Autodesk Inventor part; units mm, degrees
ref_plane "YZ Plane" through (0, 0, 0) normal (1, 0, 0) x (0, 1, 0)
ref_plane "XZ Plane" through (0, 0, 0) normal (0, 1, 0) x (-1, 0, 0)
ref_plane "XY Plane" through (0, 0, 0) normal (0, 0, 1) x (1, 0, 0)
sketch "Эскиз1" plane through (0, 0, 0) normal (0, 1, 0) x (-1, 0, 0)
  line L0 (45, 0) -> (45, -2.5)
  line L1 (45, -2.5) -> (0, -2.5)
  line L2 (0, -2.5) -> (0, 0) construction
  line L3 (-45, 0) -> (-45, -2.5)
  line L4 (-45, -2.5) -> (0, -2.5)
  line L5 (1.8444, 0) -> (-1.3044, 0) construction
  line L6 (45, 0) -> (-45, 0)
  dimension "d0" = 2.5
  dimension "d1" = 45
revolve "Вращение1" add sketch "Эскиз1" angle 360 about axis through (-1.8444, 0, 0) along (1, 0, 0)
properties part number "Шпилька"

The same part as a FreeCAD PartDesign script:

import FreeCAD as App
import Part
import Sketcher

V = App.Vector


def add_polygon(sketch, points):
    """Adds a closed chain of lines whose ends are joined by coincident constraints."""
    first, n = sketch.GeometryCount, len(points)
    for a, b in zip(points, points[1:] + points[:1]):
        sketch.addGeometry(Part.LineSegment(App.Vector(*a, 0), App.Vector(*b, 0)), False)
    for i in range(n):
        sketch.addConstraint(Sketcher.Constraint("Coincident", first + i, 2, first + (i + 1) % n, 1))

doc = App.newDocument("Part")
body = doc.addObject("PartDesign::Body", "Body")

# Sketch on XZ plane
sketch1 = doc.addObject("Sketcher::SketchObject", "Sketch")
body.addObject(sketch1)
sketch1.AttachmentSupport = (doc.XZ_Plane, [""])
sketch1.MapMode = "FlatFace"
add_polygon(sketch1, [(-45, -2.5), (-45, 0), (45, 0), (45, -2.5)])  # lines 0-3
sketch1.addConstraint(Sketcher.Constraint("Vertical", 0))
sketch1.addConstraint(Sketcher.Constraint("Horizontal", 1))
sketch1.addConstraint(Sketcher.Constraint("Vertical", 2))
sketch1.addConstraint(Sketcher.Constraint("Horizontal", 3))
sketch1.addConstraint(Sketcher.Constraint("Symmetric", 0, 2, 1, 2, -1, 1))
sketch1.addConstraint(Sketcher.Constraint("DistanceY", 0, 1, 0, 2, 2.5))
sketch1.addConstraint(Sketcher.Constraint("DistanceX", 0, 2, -1, 1, 45.0))
revolution = doc.addObject("PartDesign::Revolution", "Revolution")
body.addObject(revolution)
revolution.Profile = sketch1
revolution.ReferenceAxis = (sketch1, ["H_Axis"])
revolution.Angle = 360

doc.recompute()
